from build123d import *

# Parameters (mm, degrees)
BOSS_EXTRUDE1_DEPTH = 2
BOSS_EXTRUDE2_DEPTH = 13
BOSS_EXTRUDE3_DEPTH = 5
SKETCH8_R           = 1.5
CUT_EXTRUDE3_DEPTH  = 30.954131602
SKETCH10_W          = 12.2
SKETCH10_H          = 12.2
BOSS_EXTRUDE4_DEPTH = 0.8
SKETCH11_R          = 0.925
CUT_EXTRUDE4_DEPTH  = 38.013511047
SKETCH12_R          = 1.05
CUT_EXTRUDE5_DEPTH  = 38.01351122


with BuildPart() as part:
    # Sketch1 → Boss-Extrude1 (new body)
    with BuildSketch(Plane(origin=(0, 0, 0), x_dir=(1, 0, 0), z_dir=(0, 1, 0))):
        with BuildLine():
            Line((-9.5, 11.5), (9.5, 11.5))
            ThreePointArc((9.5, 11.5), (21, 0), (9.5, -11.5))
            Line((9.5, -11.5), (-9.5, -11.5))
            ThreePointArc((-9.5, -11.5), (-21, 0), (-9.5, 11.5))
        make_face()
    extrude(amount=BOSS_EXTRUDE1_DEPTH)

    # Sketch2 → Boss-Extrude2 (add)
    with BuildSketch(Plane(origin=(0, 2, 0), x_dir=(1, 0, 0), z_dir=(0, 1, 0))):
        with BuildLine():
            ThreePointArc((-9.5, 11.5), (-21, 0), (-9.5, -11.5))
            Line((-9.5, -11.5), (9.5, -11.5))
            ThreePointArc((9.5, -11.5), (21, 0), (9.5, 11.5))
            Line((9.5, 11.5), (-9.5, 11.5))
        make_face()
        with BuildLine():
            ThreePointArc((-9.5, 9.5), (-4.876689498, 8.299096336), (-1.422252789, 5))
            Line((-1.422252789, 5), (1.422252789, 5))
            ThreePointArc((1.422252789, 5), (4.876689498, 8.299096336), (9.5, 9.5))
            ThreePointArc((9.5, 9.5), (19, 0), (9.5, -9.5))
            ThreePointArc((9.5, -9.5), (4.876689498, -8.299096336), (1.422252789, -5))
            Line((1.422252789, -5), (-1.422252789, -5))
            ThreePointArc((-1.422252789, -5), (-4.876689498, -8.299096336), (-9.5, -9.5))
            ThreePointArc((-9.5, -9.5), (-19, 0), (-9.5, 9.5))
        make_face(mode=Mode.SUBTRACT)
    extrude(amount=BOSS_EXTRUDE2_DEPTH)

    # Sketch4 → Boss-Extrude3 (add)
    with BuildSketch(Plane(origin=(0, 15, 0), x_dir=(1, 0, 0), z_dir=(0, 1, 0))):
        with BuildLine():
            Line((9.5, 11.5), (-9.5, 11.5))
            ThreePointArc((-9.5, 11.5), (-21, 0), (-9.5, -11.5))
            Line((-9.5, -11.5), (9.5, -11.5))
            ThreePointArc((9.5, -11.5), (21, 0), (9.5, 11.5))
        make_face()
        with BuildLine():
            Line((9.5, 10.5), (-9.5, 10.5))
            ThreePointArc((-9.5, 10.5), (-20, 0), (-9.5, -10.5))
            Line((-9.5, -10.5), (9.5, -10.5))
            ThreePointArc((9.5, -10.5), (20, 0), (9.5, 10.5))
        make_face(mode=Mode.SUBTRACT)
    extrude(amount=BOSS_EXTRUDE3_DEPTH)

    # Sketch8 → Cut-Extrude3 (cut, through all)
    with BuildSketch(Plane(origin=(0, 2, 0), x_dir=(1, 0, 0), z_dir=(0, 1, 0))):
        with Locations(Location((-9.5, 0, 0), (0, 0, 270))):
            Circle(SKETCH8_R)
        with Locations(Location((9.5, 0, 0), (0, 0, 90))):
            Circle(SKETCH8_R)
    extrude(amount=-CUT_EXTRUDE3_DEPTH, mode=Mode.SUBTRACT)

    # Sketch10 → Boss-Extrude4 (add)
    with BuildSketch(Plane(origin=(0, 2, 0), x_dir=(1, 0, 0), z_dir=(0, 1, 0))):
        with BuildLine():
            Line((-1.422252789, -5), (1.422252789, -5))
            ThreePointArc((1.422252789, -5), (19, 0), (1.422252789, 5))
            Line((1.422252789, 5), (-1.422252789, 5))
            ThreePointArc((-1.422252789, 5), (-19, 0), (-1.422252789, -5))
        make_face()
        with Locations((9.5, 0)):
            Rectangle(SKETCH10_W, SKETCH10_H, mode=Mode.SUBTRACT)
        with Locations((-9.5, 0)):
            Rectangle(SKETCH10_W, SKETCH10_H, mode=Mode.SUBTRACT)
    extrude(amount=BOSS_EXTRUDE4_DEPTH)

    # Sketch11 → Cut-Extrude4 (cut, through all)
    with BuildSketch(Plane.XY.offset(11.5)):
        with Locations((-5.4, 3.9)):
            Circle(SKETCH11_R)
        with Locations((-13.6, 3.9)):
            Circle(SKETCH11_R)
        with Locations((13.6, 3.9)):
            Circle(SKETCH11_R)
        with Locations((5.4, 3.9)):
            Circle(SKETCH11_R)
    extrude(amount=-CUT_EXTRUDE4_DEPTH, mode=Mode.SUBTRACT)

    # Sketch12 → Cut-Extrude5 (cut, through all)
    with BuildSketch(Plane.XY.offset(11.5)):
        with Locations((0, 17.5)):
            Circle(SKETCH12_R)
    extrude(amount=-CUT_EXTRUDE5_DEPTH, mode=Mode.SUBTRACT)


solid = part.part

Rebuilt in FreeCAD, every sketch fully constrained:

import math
import FreeCAD as App
import Part
import Sketcher

V = App.Vector
Q = App.Units.Quantity

doc = App.newDocument("Part")
body = doc.addObject("PartDesign::Body", "Body")

sketch1 = body.newObject("Sketcher::SketchObject", "Sketch")
sketch1.AttachmentSupport = (doc.getObject("XZ_Plane"), [""])
sketch1.MapMode = "FlatFace"
sketch1.addGeometry(Part.LineSegment(V(10, -12, 0), V(-10, -12, 0)), False)
sketch1.addGeometry(Part.ArcOfCircle(Part.Circle(V(-10, 0, 0), V(0, 0, 1), 12), math.radians(90), math.radians(270)), False)
sketch1.addGeometry(Part.LineSegment(V(-10, 12, 0), V(10, 12, 0)), False)
sketch1.addGeometry(Part.ArcOfCircle(Part.Circle(V(10, 0, 0), V(0, 0, 1), 12), math.radians(-90), math.radians(90)), False)
sketch1.addConstraint(Sketcher.Constraint("Tangent", 0, 2, 1, 2))
sketch1.addConstraint(Sketcher.Constraint("Tangent", 1, 1, 2, 1))
sketch1.addConstraint(Sketcher.Constraint("Tangent", 2, 2, 3, 2))
sketch1.addConstraint(Sketcher.Constraint("Tangent", 3, 1, 0, 1))
sketch1.addConstraint(Sketcher.Constraint("Horizontal", 0))
sketch1.addConstraint(Sketcher.Constraint("Horizontal", 2))
sketch1.addConstraint(Sketcher.Constraint("Symmetric", 1, 3, 3, 3, -1, 1))
sketch1.addConstraint(Sketcher.Constraint("Radius", 1, Q("11.5 mm")))
sketch1.addConstraint(Sketcher.Constraint("DistanceX", 0, 2, 0, 1, Q("19 mm")))
pad1 = body.newObject("PartDesign::Pad", "Pad")
pad1.Profile = sketch1
pad1.Length = 2
pad1.Reversed = True

sketch2 = body.newObject("Sketcher::SketchObject", "Sketch001")
sketch2.AttachmentSupport = (doc.getObject("XZ_Plane"), [""])
sketch2.MapMode = "FlatFace"
sketch2.AttachmentOffset = App.Placement(V(0, 0, -2), App.Rotation())
sketch2.addGeometry(Part.ArcOfCircle(Part.Circle(V(-9.5, 0, 0), V(0, 0, 1), 11.5), math.radians(90), math.radians(270)), False)
sketch2.addGeometry(Part.LineSegment(V(-9.5, 11.5, 0), V(9.5, 11.5, 0)), False)
sketch2.addGeometry(Part.ArcOfCircle(Part.Circle(V(9.5, 0, 0), V(0, 0, 1), 11.5), math.radians(-90), math.radians(90)), False)
sketch2.addGeometry(Part.LineSegment(V(9.5, -11.5, 0), V(-9.5, -11.5, 0)), False)
sketch2.addGeometry(Part.ArcOfCircle(Part.Circle(V(-9.5, 0, 0), V(0, 0, 1), 9.5), math.radians(90), math.radians(270)), False)
sketch2.addGeometry(Part.ArcOfCircle(Part.Circle(V(-9.5, 0, 0), V(0, 0, 1), 9.5), math.radians(-90), math.radians(-32)), False)
sketch2.addGeometry(Part.LineSegment(V(-1.4, -5, 0), V(1.4, -5, 0)), False)
sketch2.addGeometry(Part.ArcOfCircle(Part.Circle(V(9.5, 0, 0), V(0, 0, 1), 9.5), math.radians(-148), math.radians(-90)), False)
sketch2.addGeometry(Part.ArcOfCircle(Part.Circle(V(9.5, 0, 0), V(0, 0, 1), 9.5), math.radians(-90), math.radians(90)), False)
sketch2.addGeometry(Part.ArcOfCircle(Part.Circle(V(9.5, 0, 0), V(0, 0, 1), 9.5), math.radians(90), math.radians(148)), False)
sketch2.addGeometry(Part.LineSegment(V(1.4, 5, 0), V(-1.4, 5, 0)), False)
sketch2.addGeometry(Part.ArcOfCircle(Part.Circle(V(-9.5, 0, 0), V(0, 0, 1), 9.5), math.radians(32), math.radians(90)), False)
sketch2.addConstraint(Sketcher.Constraint("Tangent", 0, 1, 1, 1))
sketch2.addConstraint(Sketcher.Constraint("Tangent", 1, 2, 2, 2))
sketch2.addConstraint(Sketcher.Constraint("Tangent", 2, 1, 3, 1))
sketch2.addConstraint(Sketcher.Constraint("Tangent", 3, 2, 0, 2))
sketch2.addConstraint(Sketcher.Constraint("Tangent", 4, 2, 5, 1))
sketch2.addConstraint(Sketcher.Constraint("Coincident", 5, 2, 6, 1))
sketch2.addConstraint(Sketcher.Constraint("Coincident", 6, 2, 7, 1))
sketch2.addConstraint(Sketcher.Constraint("Tangent", 7, 2, 8, 1))
sketch2.addConstraint(Sketcher.Constraint("Tangent", 8, 2, 9, 1))
sketch2.addConstraint(Sketcher.Constraint("Coincident", 9, 2, 10, 1))
sketch2.addConstraint(Sketcher.Constraint("Coincident", 10, 2, 11, 1))
sketch2.addConstraint(Sketcher.Constraint("Tangent", 11, 2, 4, 1))
sketch2.addConstraint(Sketcher.Constraint("Horizontal", 1))
sketch2.addConstraint(Sketcher.Constraint("Horizontal", 3))
sketch2.addConstraint(Sketcher.Constraint("Horizontal", 6))
sketch2.addConstraint(Sketcher.Constraint("Horizontal", 10))
sketch2.addConstraint(Sketcher.Constraint("Coincident", 4, 3, 0, 3))
sketch2.addConstraint(Sketcher.Constraint("Coincident", 7, 3, 2, 3))
sketch2.addConstraint(Sketcher.Constraint("Equal", 4, 5))
sketch2.addConstraint(Sketcher.Constraint("Equal", 5, 7))
sketch2.addConstraint(Sketcher.Constraint("Equal", 7, 8))
sketch2.addConstraint(Sketcher.Constraint("Equal", 8, 9))
sketch2.addConstraint(Sketcher.Constraint("Equal", 9, 11))
sketch2.addConstraint(Sketcher.Constraint("Symmetric", 0, 3, 2, 3, -1, 1))
sketch2.addConstraint(Sketcher.Constraint("Vertical", 3, 2, 4, 2))
sketch2.addConstraint(Sketcher.Constraint("Vertical", 2, 1, 7, 2))
sketch2.addConstraint(Sketcher.Constraint("Vertical", 7, 2, 8, 2))
sketch2.addConstraint(Sketcher.Constraint("Vertical", 6, 2, 9, 2))
sketch2.addConstraint(Sketcher.Constraint("Vertical", 4, 2, 11, 2))
sketch2.addConstraint(Sketcher.Constraint("Radius", 0, Q("11.5 mm")))
sketch2.addConstraint(Sketcher.Constraint("Radius", 4, Q("9.5 mm")))
sketch2.addConstraint(Sketcher.Constraint("DistanceX", 1, 1, 1, 2, Q("19 mm")))
sketch2.addConstraint(Sketcher.Constraint("DistanceY", 5, 2, -1, 1, Q("5 mm")))
pad2 = body.newObject("PartDesign::Pad", "Pad001")
pad2.Profile = sketch2
pad2.Length = 13
pad2.Reversed = True

sketch3 = body.newObject("Sketcher::SketchObject", "Sketch002")
sketch3.AttachmentSupport = (doc.getObject("XZ_Plane"), [""])
sketch3.MapMode = "FlatFace"
sketch3.AttachmentOffset = App.Placement(V(0, 0, -15), App.Rotation())
sketch3.addGeometry(Part.LineSegment(V(10, -12, 0), V(-10, -12, 0)), False)
sketch3.addGeometry(Part.ArcOfCircle(Part.Circle(V(-10, 0, 0), V(0, 0, 1), 12), math.radians(90), math.radians(270)), False)
sketch3.addGeometry(Part.LineSegment(V(-10, 12, 0), V(10, 12, 0)), False)
sketch3.addGeometry(Part.ArcOfCircle(Part.Circle(V(10, 0, 0), V(0, 0, 1), 12), math.radians(-90), math.radians(90)), False)
sketch3.addGeometry(Part.LineSegment(V(-10, -10, 0), V(10, -10, 0)), False)
sketch3.addGeometry(Part.ArcOfCircle(Part.Circle(V(10, 0, 0), V(0, 0, 1), 10), math.radians(-90), math.radians(90)), False)
sketch3.addGeometry(Part.LineSegment(V(10, 10, 0), V(-10, 10, 0)), False)
sketch3.addGeometry(Part.ArcOfCircle(Part.Circle(V(-10, 0, 0), V(0, 0, 1), 10), math.radians(90), math.radians(270)), False)
sketch3.addConstraint(Sketcher.Constraint("Tangent", 0, 2, 1, 2))
sketch3.addConstraint(Sketcher.Constraint("Tangent", 1, 1, 2, 1))
sketch3.addConstraint(Sketcher.Constraint("Tangent", 2, 2, 3, 2))
sketch3.addConstraint(Sketcher.Constraint("Tangent", 3, 1, 0, 1))
sketch3.addConstraint(Sketcher.Constraint("Tangent", 4, 2, 5, 1))
sketch3.addConstraint(Sketcher.Constraint("Tangent", 5, 2, 6, 1))
sketch3.addConstraint(Sketcher.Constraint("Tangent", 6, 2, 7, 1))
sketch3.addConstraint(Sketcher.Constraint("Tangent", 7, 2, 4, 1))
sketch3.addConstraint(Sketcher.Constraint("Horizontal", 0))
sketch3.addConstraint(Sketcher.Constraint("Horizontal", 2))
sketch3.addConstraint(Sketcher.Constraint("Horizontal", 4))
sketch3.addConstraint(Sketcher.Constraint("Horizontal", 6))
sketch3.addConstraint(Sketcher.Constraint("Coincident", 5, 3, 3, 3))
sketch3.addConstraint(Sketcher.Constraint("Symmetric", 1, 3, 3, 3, -1, 1))
sketch3.addConstraint(Sketcher.Constraint("Vertical", 7, 3, 0, 2))
sketch3.addConstraint(Sketcher.Constraint("Radius", 1, Q("11.5 mm")))
sketch3.addConstraint(Sketcher.Constraint("Radius", 5, Q("10.5 mm")))
sketch3.addConstraint(Sketcher.Constraint("DistanceX", 0, 2, 0, 1, Q("19 mm")))
pad3 = body.newObject("PartDesign::Pad", "Pad002")
pad3.Profile = sketch3
pad3.Length = 5
pad3.Reversed = True

sketch4 = body.newObject("Sketcher::SketchObject", "Sketch003")
sketch4.AttachmentSupport = (doc.getObject("XZ_Plane"), [""])
sketch4.MapMode = "FlatFace"
sketch4.AttachmentOffset = App.Placement(V(0, 0, -2), App.Rotation())
sketch4.addGeometry(Part.Circle(V(-9.5, 0, 0), V(0, 0, 1), 1.5), False)
sketch4.addGeometry(Part.Circle(V(9.5, 0, 0), V(0, 0, 1), 1.5), False)
sketch4.addConstraint(Sketcher.Constraint("Equal", 0, 1))
sketch4.addConstraint(Sketcher.Constraint("Symmetric", 0, 3, 1, 3, -1, 1))
sketch4.addConstraint(Sketcher.Constraint("PointOnObject", 0, 3, -1))
sketch4.addConstraint(Sketcher.Constraint("Diameter", 0, Q("3 mm")))
sketch4.addConstraint(Sketcher.Constraint("DistanceX", 0, 3, 1, 3, Q("19 mm")))
pocket1 = body.newObject("PartDesign::Pocket", "Pocket")
pocket1.Profile = sketch4
pocket1.Type = "ThroughAll"
pocket1.Reversed = True

sketch5 = body.newObject("Sketcher::SketchObject", "Sketch004")
sketch5.AttachmentSupport = (doc.getObject("XZ_Plane"), [""])
sketch5.MapMode = "FlatFace"
sketch5.AttachmentOffset = App.Placement(V(0, 0, -2), App.Rotation())
sketch5.addGeometry(Part.LineSegment(V(-1.4, 5, 0), V(1.4, 5, 0)), False)
sketch5.addGeometry(Part.ArcOfCircle(Part.Circle(V(9.5, 0, 0), V(0, 0, 1), 9.5), math.radians(-148), math.radians(148)), False)
sketch5.addGeometry(Part.LineSegment(V(1.4, -5, 0), V(-1.4, -5, 0)), False)
sketch5.addGeometry(Part.ArcOfCircle(Part.Circle(V(-9.5, 0, 0), V(0, 0, 1), 9.5), math.radians(32), math.radians(328)), False)
sketch5.addGeometry(Part.LineSegment(V(-3.4, 6.1, 0), V(-15.6, 6.1, 0)), False)
sketch5.addGeometry(Part.LineSegment(V(-15.6, 6.1, 0), V(-15.6, -6.1, 0)), False)
sketch5.addGeometry(Part.LineSegment(V(-15.6, -6.1, 0), V(-3.4, -6.1, 0)), False)
sketch5.addGeometry(Part.LineSegment(V(-3.4, -6.1, 0), V(-3.4, 6.1, 0)), False)
sketch5.addGeometry(Part.LineSegment(V(15.6, 6.1, 0), V(3.4, 6.1, 0)), False)
sketch5.addGeometry(Part.LineSegment(V(3.4, 6.1, 0), V(3.4, -6.1, 0)), False)
sketch5.addGeometry(Part.LineSegment(V(3.4, -6.1, 0), V(15.6, -6.1, 0)), False)
sketch5.addGeometry(Part.LineSegment(V(15.6, -6.1, 0), V(15.6, 6.1, 0)), False)
sketch5.addConstraint(Sketcher.Constraint("Coincident", 0, 2, 1, 2))
sketch5.addConstraint(Sketcher.Constraint("Coincident", 1, 1, 2, 1))
sketch5.addConstraint(Sketcher.Constraint("Coincident", 2, 2, 3, 2))
sketch5.addConstraint(Sketcher.Constraint("Coincident", 3, 1, 0, 1))
sketch5.addConstraint(Sketcher.Constraint("Coincident", 4, 2, 5, 1))
sketch5.addConstraint(Sketcher.Constraint("Coincident", 5, 2, 6, 1))
sketch5.addConstraint(Sketcher.Constraint("Coincident", 6, 2, 7, 1))
sketch5.addConstraint(Sketcher.Constraint("Coincident", 7, 2, 4, 1))
sketch5.addConstraint(Sketcher.Constraint("Coincident", 8, 2, 9, 1))
sketch5.addConstraint(Sketcher.Constraint("Coincident", 9, 2, 10, 1))
sketch5.addConstraint(Sketcher.Constraint("Coincident", 10, 2, 11, 1))
sketch5.addConstraint(Sketcher.Constraint("Coincident", 11, 2, 8, 1))
sketch5.addConstraint(Sketcher.Constraint("Horizontal", 0))
sketch5.addConstraint(Sketcher.Constraint("Horizontal", 2))
sketch5.addConstraint(Sketcher.Constraint("Horizontal", 4))
sketch5.addConstraint(Sketcher.Constraint("Vertical", 5))
sketch5.addConstraint(Sketcher.Constraint("Horizontal", 6))
sketch5.addConstraint(Sketcher.Constraint("Vertical", 7))
sketch5.addConstraint(Sketcher.Constraint("Horizontal", 8))
sketch5.addConstraint(Sketcher.Constraint("Vertical", 9))
sketch5.addConstraint(Sketcher.Constraint("Horizontal", 10))
sketch5.addConstraint(Sketcher.Constraint("Vertical", 11))
sketch5.addConstraint(Sketcher.Constraint("Equal", 1, 3))
sketch5.addConstraint(Sketcher.Constraint("Symmetric", 1, 3, 3, 3, -1, 1))
sketch5.addConstraint(Sketcher.Constraint("Symmetric", 6, 2, 8, 2, -1, 1))
sketch5.addConstraint(Sketcher.Constraint("Symmetric", 4, 2, 10, 2, -1, 1))
sketch5.addConstraint(Sketcher.Constraint("Symmetric", 0, 2, 1, 1, -1))
sketch5.addConstraint(Sketcher.Constraint("Horizontal", 7, 2, 8, 2))
sketch5.addConstraint(Sketcher.Constraint("Equal", 10, 5))
sketch5.addConstraint(Sketcher.Constraint("Radius", 1, Q("9.5 mm")))
sketch5.addConstraint(Sketcher.Constraint("DistanceX", 4, 2, 4, 1, Q("12.2 mm")))
sketch5.addConstraint(Sketcher.Constraint("DistanceY", -1, 1, 0, 2, Q("5 mm")))
sketch5.addConstraint(Sketcher.Constraint("DistanceX", 3, 3, 1, 3, Q("19 mm")))
sketch5.addConstraint(Sketcher.Constraint("DistanceX", 4, 2, -1, 1, Q("15.6 mm")))
pad4 = body.newObject("PartDesign::Pad", "Pad003")
pad4.Profile = sketch5
pad4.Length = 0.8
pad4.Reversed = True

sketch6 = body.newObject("Sketcher::SketchObject", "Sketch005")
sketch6.AttachmentSupport = (doc.getObject("XY_Plane"), [""])
sketch6.MapMode = "FlatFace"
sketch6.AttachmentOffset = App.Placement(V(0, 0, 11.5), App.Rotation())
sketch6.addGeometry(Part.Circle(V(-5.4, 3.9, 0), V(0, 0, 1), 0.9), False)
sketch6.addGeometry(Part.Circle(V(-13.6, 3.9, 0), V(0, 0, 1), 0.9), False)
sketch6.addGeometry(Part.Circle(V(13.6, 3.9, 0), V(0, 0, 1), 0.9), False)
sketch6.addGeometry(Part.Circle(V(5.4, 3.9, 0), V(0, 0, 1), 0.9), False)
sketch6.addConstraint(Sketcher.Constraint("Equal", 0, 1))
sketch6.addConstraint(Sketcher.Constraint("Equal", 1, 2))
sketch6.addConstraint(Sketcher.Constraint("Equal", 2, 3))
sketch6.addConstraint(Sketcher.Constraint("Symmetric", 1, 3, 2, 3, -2))
sketch6.addConstraint(Sketcher.Constraint("Symmetric", 0, 3, 3, 3, -2))
sketch6.addConstraint(Sketcher.Constraint("Horizontal", 0, 3, 1, 3))
sketch6.addConstraint(Sketcher.Constraint("Diameter", 0, Q("1.85 mm")))
sketch6.addConstraint(Sketcher.Constraint("DistanceX", 0, 3, 2, 3, Q("19 mm")))
sketch6.addConstraint(Sketcher.Constraint("DistanceX", 0, 3, -1, 1, Q("5.4 mm")))
sketch6.addConstraint(Sketcher.Constraint("DistanceY", -1, 1, 0, 3, Q("3.9 mm")))
pocket2 = body.newObject("PartDesign::Pocket", "Pocket001")
pocket2.Profile = sketch6
pocket2.Type = "ThroughAll"

sketch7 = body.newObject("Sketcher::SketchObject", "Sketch006")
sketch7.AttachmentSupport = (doc.getObject("XY_Plane"), [""])
sketch7.MapMode = "FlatFace"
sketch7.AttachmentOffset = App.Placement(V(0, 0, 11.5), App.Rotation())
sketch7.addGeometry(Part.Circle(V(0, 17.5, 0), V(0, 0, 1), 1.1), False)
sketch7.addConstraint(Sketcher.Constraint("PointOnObject", 0, 3, -2))
sketch7.addConstraint(Sketcher.Constraint("Diameter", 0, Q("2.1 mm")))
sketch7.addConstraint(Sketcher.Constraint("DistanceY", -1, 1, 0, 3, Q("17.5 mm")))
pocket3 = body.newObject("PartDesign::Pocket", "Pocket002")
pocket3.Profile = sketch7
pocket3.Type = "ThroughAll"

doc.recompute()
